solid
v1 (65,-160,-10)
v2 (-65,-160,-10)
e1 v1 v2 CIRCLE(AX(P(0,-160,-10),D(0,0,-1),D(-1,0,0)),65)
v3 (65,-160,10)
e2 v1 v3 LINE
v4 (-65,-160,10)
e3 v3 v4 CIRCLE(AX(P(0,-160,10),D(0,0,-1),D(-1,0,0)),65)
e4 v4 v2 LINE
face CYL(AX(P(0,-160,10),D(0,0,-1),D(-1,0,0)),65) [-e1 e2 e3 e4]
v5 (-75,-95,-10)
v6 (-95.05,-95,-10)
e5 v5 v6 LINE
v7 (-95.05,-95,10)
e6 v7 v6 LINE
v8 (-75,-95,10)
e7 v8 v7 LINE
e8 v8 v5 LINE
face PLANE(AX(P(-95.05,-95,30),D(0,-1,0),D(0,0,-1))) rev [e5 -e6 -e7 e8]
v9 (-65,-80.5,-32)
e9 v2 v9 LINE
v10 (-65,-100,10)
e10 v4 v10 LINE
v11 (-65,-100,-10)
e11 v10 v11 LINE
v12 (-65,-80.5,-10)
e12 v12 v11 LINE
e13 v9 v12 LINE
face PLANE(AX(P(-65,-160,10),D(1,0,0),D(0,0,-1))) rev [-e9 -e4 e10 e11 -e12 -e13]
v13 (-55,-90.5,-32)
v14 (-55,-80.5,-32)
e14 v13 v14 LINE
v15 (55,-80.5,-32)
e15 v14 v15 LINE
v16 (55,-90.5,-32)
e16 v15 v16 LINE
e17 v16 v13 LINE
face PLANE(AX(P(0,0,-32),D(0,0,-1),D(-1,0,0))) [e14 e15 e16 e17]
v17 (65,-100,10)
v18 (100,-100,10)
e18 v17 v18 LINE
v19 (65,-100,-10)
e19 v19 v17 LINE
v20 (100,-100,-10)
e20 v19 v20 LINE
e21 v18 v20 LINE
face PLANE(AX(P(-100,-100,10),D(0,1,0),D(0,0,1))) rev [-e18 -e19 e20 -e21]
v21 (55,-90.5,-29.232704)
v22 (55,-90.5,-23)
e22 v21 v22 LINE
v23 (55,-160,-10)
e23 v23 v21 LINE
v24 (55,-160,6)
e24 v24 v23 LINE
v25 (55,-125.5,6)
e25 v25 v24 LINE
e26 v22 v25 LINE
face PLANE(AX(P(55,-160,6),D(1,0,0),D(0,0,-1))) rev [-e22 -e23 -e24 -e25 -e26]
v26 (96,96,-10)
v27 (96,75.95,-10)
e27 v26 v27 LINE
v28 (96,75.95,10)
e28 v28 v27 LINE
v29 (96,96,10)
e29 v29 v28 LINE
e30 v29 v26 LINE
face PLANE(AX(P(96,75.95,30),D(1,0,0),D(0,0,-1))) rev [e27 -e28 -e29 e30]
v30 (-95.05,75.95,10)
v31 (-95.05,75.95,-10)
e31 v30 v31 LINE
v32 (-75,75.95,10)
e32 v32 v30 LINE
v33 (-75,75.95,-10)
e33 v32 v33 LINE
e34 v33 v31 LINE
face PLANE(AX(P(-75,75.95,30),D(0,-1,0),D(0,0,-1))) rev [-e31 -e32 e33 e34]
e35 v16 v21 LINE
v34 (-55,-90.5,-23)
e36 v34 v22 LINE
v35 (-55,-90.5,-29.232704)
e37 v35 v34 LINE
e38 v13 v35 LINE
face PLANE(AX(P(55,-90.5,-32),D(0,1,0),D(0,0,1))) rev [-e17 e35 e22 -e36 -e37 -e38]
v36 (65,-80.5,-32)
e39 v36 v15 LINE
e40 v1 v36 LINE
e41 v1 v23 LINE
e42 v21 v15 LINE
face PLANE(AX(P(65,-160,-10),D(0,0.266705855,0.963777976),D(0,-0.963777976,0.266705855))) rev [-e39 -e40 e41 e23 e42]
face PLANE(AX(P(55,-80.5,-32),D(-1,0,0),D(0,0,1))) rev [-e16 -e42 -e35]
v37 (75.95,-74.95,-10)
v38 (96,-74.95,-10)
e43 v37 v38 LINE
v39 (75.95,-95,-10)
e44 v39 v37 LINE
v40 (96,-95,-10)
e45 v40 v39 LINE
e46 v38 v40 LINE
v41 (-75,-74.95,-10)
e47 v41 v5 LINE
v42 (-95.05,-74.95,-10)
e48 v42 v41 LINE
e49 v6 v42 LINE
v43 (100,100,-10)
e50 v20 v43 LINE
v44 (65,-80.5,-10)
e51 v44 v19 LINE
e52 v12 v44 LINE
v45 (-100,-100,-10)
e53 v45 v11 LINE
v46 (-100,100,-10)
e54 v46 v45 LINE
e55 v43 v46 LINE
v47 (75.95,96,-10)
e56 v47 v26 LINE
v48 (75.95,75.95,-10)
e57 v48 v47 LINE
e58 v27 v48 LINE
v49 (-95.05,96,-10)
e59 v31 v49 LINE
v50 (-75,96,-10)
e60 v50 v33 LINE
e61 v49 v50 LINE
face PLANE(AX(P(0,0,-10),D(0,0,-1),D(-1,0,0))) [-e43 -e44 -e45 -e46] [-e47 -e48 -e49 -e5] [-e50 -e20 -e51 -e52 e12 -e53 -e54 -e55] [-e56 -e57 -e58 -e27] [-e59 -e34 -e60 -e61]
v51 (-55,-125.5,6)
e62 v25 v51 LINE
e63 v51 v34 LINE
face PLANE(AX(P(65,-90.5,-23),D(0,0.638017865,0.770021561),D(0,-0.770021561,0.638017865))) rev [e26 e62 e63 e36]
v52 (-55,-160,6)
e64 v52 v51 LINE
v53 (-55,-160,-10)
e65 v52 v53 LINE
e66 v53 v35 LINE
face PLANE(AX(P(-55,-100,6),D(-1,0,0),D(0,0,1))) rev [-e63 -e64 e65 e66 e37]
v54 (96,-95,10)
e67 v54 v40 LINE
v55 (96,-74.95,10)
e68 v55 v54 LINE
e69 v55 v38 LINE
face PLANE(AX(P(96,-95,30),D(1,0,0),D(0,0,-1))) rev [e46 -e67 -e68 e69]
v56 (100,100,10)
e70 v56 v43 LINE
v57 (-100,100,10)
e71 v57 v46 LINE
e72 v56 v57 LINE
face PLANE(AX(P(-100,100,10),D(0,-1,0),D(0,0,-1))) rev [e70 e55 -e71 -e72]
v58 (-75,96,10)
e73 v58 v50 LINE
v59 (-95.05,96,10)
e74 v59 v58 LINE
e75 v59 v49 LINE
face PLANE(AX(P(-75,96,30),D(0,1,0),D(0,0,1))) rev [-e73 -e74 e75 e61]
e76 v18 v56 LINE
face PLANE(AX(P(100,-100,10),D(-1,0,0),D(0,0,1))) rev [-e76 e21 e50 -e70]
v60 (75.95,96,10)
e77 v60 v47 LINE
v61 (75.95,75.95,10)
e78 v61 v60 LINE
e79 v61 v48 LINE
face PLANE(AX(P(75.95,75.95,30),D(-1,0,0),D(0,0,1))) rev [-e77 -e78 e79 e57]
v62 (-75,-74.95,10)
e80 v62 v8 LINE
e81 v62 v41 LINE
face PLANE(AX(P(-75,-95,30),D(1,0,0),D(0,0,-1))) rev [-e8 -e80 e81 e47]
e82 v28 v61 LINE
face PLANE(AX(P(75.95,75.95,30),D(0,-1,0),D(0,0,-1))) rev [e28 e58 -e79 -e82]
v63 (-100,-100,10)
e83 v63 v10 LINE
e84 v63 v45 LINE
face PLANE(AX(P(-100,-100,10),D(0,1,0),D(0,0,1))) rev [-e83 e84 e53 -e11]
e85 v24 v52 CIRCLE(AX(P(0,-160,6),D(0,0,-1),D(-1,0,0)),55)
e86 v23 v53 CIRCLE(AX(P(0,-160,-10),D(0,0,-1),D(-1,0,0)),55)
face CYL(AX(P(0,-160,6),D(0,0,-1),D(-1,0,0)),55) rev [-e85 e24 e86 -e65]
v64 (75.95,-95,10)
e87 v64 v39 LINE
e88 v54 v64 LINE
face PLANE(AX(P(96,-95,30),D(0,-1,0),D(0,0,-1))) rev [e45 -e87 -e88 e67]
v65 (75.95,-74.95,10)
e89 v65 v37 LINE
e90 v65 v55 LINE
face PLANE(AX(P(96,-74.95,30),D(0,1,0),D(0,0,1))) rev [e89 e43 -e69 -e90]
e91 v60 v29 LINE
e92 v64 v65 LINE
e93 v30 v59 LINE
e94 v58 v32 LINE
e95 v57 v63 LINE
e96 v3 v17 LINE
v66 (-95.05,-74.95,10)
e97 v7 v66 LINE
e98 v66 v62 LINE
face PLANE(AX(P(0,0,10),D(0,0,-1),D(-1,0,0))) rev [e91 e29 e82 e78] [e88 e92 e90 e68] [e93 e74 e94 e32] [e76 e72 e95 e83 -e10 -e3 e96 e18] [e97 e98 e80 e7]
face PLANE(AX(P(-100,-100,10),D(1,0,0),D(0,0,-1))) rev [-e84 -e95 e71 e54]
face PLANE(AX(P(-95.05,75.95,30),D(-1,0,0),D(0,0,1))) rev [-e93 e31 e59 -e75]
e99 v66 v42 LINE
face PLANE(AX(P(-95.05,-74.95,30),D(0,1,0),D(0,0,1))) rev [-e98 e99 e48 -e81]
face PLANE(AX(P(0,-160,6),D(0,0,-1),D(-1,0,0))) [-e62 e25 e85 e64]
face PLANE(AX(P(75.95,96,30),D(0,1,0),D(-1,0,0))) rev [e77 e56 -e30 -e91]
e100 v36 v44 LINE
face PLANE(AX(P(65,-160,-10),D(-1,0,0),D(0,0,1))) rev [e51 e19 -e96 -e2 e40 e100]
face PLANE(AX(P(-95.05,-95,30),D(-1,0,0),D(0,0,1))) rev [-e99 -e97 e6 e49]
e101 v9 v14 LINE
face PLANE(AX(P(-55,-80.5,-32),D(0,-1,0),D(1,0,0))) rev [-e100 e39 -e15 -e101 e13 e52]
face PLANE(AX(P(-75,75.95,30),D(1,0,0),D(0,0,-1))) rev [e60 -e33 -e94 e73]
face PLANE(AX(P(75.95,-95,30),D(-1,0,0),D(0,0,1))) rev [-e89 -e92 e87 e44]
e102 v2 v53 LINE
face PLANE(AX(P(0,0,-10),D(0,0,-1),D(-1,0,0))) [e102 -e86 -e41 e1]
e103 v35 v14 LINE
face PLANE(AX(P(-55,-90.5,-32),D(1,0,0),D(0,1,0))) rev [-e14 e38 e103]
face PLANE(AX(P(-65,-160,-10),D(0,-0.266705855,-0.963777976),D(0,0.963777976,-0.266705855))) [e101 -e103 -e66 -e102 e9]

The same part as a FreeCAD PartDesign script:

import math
import FreeCAD as App
import Part
import Sketcher

V = App.Vector
Q = App.Units.Quantity

doc = App.newDocument("Part")
params = doc.addObject("Spreadsheet::Sheet", "Params")
for row, (alias, value) in enumerate([
    ("sketch1_width", "200 mm"),
    ("pad1_length", "20 mm"),
    ("sketch2_width", "20.05 mm"),
    ("pocket1_length", "40 mm"),
    ("sketch3_width", "130 mm"),
    ("sketch3_height", "20 mm"),
    ("pad2_length", "60 mm"),
    ("sketch4_radius", "65 mm"),
    ("pad3_length", "20 mm"),
    ("sketch5_radius", "55 mm"),
    ("sketch5_height", "79.5 mm"),
    ("pocket2_length", "16 mm"),
    ("sketch6_width", "110 mm"),
    ("sketch6_height", "10 mm"),
    ("pad4_length", "38 mm"),
    ("sketch7_height", "22 mm"),
    ("sketch7_width", "79.5 mm"),
    ("pad5_length", "10 mm"),
    ("sketch8_width", "35 mm"),
    ("sketch8_height", "29 mm"),
    ("pad6_length", "120 mm"),
], start=1):
    params.set(f"A{row}", alias)
    params.set(f"B{row}", "=" + value)
    params.setAlias(f"B{row}", alias)

body = doc.addObject("PartDesign::Body", "Body")

sketch1 = doc.addObject("Sketcher::SketchObject", "Sketch")
body.addObject(sketch1)
sketch1.AttachmentSupport = (doc.XY_Plane, [""])
sketch1.MapMode = "FlatFace"
sketch1.addGeometry([
    Part.LineSegment(V(-100, 100, 0), V(-100, -100, 0)),
    Part.LineSegment(V(-100, -100, 0), V(100, -100, 0)),
    Part.LineSegment(V(100, -100, 0), V(100, 100, 0)),
    Part.LineSegment(V(100, 100, 0), V(-100, 100, 0)),
], False)
sketch1.addConstraint([
    Sketcher.Constraint("Coincident", 0, 2, 1, 1),
    Sketcher.Constraint("Coincident", 1, 2, 2, 1),
    Sketcher.Constraint("Coincident", 2, 2, 3, 1),
    Sketcher.Constraint("Coincident", 3, 2, 0, 1),
    Sketcher.Constraint("Vertical", 0),
    Sketcher.Constraint("Horizontal", 1),
    Sketcher.Constraint("Vertical", 2),
    Sketcher.Constraint("Horizontal", 3),
    Sketcher.Constraint("Symmetric", 0, 2, 2, 2, -1, 1),
    Sketcher.Constraint("Equal", 3, 0),
    Sketcher.Constraint("DistanceX", 1, 1, 1, 2, Q("200 mm")),
])
sketch1.setExpression("Constraints[10]", "Params.sketch1_width")
pad1 = doc.addObject("PartDesign::Pad", "Pad")
body.addObject(pad1)
pad1.Profile = sketch1
pad1.setExpression("Length", "Params.pad1_length")
pad1.Midplane = True

sketch2 = doc.addObject("Sketcher::SketchObject", "Sketch001")
body.addObject(sketch2)
sketch2.AttachmentSupport = (doc.XY_Plane, [""])
sketch2.MapMode = "FlatFace"
sketch2.AttachmentOffset = App.Placement(V(0, 0, -10), App.Rotation())
sketch2.addGeometry([
    Part.LineSegment(V(96, 96, 0), V(96, 76, 0)),
    Part.LineSegment(V(96, 76, 0), V(76, 76, 0)),
    Part.LineSegment(V(76, 76, 0), V(76, 96, 0)),
    Part.LineSegment(V(76, 96, 0), V(96, 96, 0)),
    Part.LineSegment(V(-75, 96, 0), V(-75, 76, 0)),
    Part.LineSegment(V(-75, 76, 0), V(-95, 76, 0)),
    Part.LineSegment(V(-95, 76, 0), V(-95, 96, 0)),
    Part.LineSegment(V(-95, 96, 0), V(-75, 96, 0)),
    Part.LineSegment(V(-75, -75, 0), V(-75, -95, 0)),
    Part.LineSegment(V(-75, -95, 0), V(-95, -95, 0)),
    Part.LineSegment(V(-95, -95, 0), V(-95, -75, 0)),
    Part.LineSegment(V(-95, -75, 0), V(-75, -75, 0)),
    Part.LineSegment(V(96, -75, 0), V(96, -95, 0)),
    Part.LineSegment(V(96, -95, 0), V(76, -95, 0)),
    Part.LineSegment(V(76, -95, 0), V(76, -75, 0)),
    Part.LineSegment(V(76, -75, 0), V(96, -75, 0)),
], False)
sketch2.addConstraint([
    Sketcher.Constraint("Coincident", 0, 2, 1, 1),
    Sketcher.Constraint("Coincident", 1, 2, 2, 1),
    Sketcher.Constraint("Coincident", 2, 2, 3, 1),
    Sketcher.Constraint("Coincident", 3, 2, 0, 1),
    Sketcher.Constraint("Coincident", 4, 2, 5, 1),
    Sketcher.Constraint("Coincident", 5, 2, 6, 1),
    Sketcher.Constraint("Coincident", 6, 2, 7, 1),
    Sketcher.Constraint("Coincident", 7, 2, 4, 1),
    Sketcher.Constraint("Coincident", 8, 2, 9, 1),
    Sketcher.Constraint("Coincident", 9, 2, 10, 1),
    Sketcher.Constraint("Coincident", 10, 2, 11, 1),
    Sketcher.Constraint("Coincident", 11, 2, 8, 1),
    Sketcher.Constraint("Coincident", 12, 2, 13, 1),
    Sketcher.Constraint("Coincident", 13, 2, 14, 1),
    Sketcher.Constraint("Coincident", 14, 2, 15, 1),
    Sketcher.Constraint("Coincident", 15, 2, 12, 1),
    Sketcher.Constraint("Vertical", 0),
    Sketcher.Constraint("Horizontal", 1),
    Sketcher.Constraint("Vertical", 2),
    Sketcher.Constraint("Horizontal", 3),
    Sketcher.Constraint("Vertical", 4),
    Sketcher.Constraint("Horizontal", 5),
    Sketcher.Constraint("Vertical", 6),
    Sketcher.Constraint("Horizontal", 7),
    Sketcher.Constraint("Vertical", 8),
    Sketcher.Constraint("Horizontal", 9),
    Sketcher.Constraint("Vertical", 10),
    Sketcher.Constraint("Horizontal", 11),
    Sketcher.Constraint("Vertical", 12),
    Sketcher.Constraint("Horizontal", 13),
    Sketcher.Constraint("Vertical", 14),
    Sketcher.Constraint("Horizontal", 15),
    Sketcher.Constraint("Horizontal", 1, 2, 4, 2),
    Sketcher.Constraint("Horizontal", 3, 2, 6, 2),
    Sketcher.Constraint("Horizontal", 9, 2, 12, 2),
    Sketcher.Constraint("Horizontal", 11, 2, 14, 2),
    Sketcher.Constraint("Vertical", 7, 2, 8, 2),
    Sketcher.Constraint("Vertical", 6, 2, 9, 2),
    Sketcher.Constraint("Vertical", 3, 2, 12, 2),
    Sketcher.Constraint("Vertical", 2, 2, 13, 2),
    Sketcher.Constraint("Equal", 3, 5),
    Sketcher.Constraint("Equal", 15, 0),
    Sketcher.Constraint("Equal", 6, 8),
    Sketcher.Constraint("DistanceX", -1, 1, 0, 2, Q("96 mm")),
    Sketcher.Constraint("DistanceY", -1, 1, 2, 2, Q("96 mm")),
    Sketcher.Constraint("DistanceX", 4, 2, -1, 1, Q("75 mm")),
    Sketcher.Constraint("DistanceY", 8, 2, -1, 1, Q("95 mm")),
    Sketcher.Constraint("DistanceX", 1, 2, 1, 1, Q("20.05 mm")),
])
sketch2.setExpression("Constraints[47]", "Params.sketch2_width")
pocket1 = doc.addObject("PartDesign::Pocket", "Pocket")
body.addObject(pocket1)
pocket1.Profile = sketch2
pocket1.setExpression("Length", "Params.pocket1_length")
pocket1.Reversed = True

sketch3 = doc.addObject("Sketcher::SketchObject", "Sketch002")
body.addObject(sketch3)
sketch3.AttachmentSupport = (doc.XZ_Plane, [""])
sketch3.MapMode = "FlatFace"
sketch3.AttachmentOffset = App.Placement(V(0, 0, 100), App.Rotation())
sketch3.addGeometry([
    Part.LineSegment(V(-65, 10, 0), V(-65, -10, 0)),
    Part.LineSegment(V(-65, -10, 0), V(65, -10, 0)),
    Part.LineSegment(V(65, -10, 0), V(65, 10, 0)),
    Part.LineSegment(V(65, 10, 0), V(-65, 10, 0)),
], False)
sketch3.addConstraint([
    Sketcher.Constraint("Coincident", 0, 2, 1, 1),
    Sketcher.Constraint("Coincident", 1, 2, 2, 1),
    Sketcher.Constraint("Coincident", 2, 2, 3, 1),
    Sketcher.Constraint("Coincident", 3, 2, 0, 1),
    Sketcher.Constraint("Vertical", 0),
    Sketcher.Constraint("Horizontal", 1),
    Sketcher.Constraint("Vertical", 2),
    Sketcher.Constraint("Horizontal", 3),
    Sketcher.Constraint("Symmetric", 0, 2, 2, 2, -1, 1),
    Sketcher.Constraint("DistanceX", 1, 1, 1, 2, Q("130 mm")),
    Sketcher.Constraint("DistanceY", 0, 2, 0, 1, Q("20 mm")),
])
sketch3.setExpression("Constraints[9]", "Params.sketch3_width")
sketch3.setExpression("Constraints[10]", "Params.sketch3_height")
pad2 = doc.addObject("PartDesign::Pad", "Pad001")
body.addObject(pad2)
pad2.Profile = sketch3
pad2.setExpression("Length", "Params.pad2_length")

sketch4 = doc.addObject("Sketcher::SketchObject", "Sketch003")
body.addObject(sketch4)
sketch4.AttachmentSupport = (doc.XY_Plane, [""])
sketch4.MapMode = "FlatFace"
sketch4.AttachmentOffset = App.Placement(V(0, 0, -10), App.Rotation())
sketch4.addGeometry([
    Part.LineSegment(V(-65, -160, 0), V(65, -160, 0)),
    Part.ArcOfCircle(Part.Circle(V(0, -160, 0), V(0, 0, 1), 65), math.radians(180), math.radians(360)),
], False)
sketch4.addConstraint([
    Sketcher.Constraint("Coincident", 0, 1, 1, 1),
    Sketcher.Constraint("Coincident", 1, 2, 0, 2),
    Sketcher.Constraint("Horizontal", 0),
    Sketcher.Constraint("PointOnObject", 1, 3, -2),
    Sketcher.Constraint("Horizontal", 1, 3, 0, 1),
    Sketcher.Constraint("Radius", 1, Q("65 mm")),
    Sketcher.Constraint("DistanceY", 1, 3, -1, 1, Q("160 mm")),
])
sketch4.setExpression("Constraints[5]", "Params.sketch4_radius")
pad3 = doc.addObject("PartDesign::Pad", "Pad002")
body.addObject(pad3)
pad3.Profile = sketch4
pad3.setExpression("Length", "Params.pad3_length")

sketch5 = doc.addObject("Sketcher::SketchObject", "Sketch004")
body.addObject(sketch5)
sketch5.AttachmentSupport = (doc.XY_Plane, [""])
sketch5.MapMode = "FlatFace"
sketch5.AttachmentOffset = App.Placement(V(0, 0, -10), App.Rotation())
sketch5.addGeometry([
    Part.LineSegment(V(-55, -80, 0), V(55, -80, 0)),
    Part.LineSegment(V(55, -80, 0), V(55, -160, 0)),
    Part.ArcOfCircle(Part.Circle(V(0, -160, 0), V(0, 0, 1), 55), math.radians(180), math.radians(360)),
    Part.LineSegment(V(-55, -160, 0), V(-55, -80, 0)),
], False)
sketch5.addConstraint([
    Sketcher.Constraint("Coincident", 0, 2, 1, 1),
    Sketcher.Constraint("Tangent", 1, 2, 2, 2),
    Sketcher.Constraint("Tangent", 2, 1, 3, 1),
    Sketcher.Constraint("Coincident", 3, 2, 0, 1),
    Sketcher.Constraint("Horizontal", 0),
    Sketcher.Constraint("Vertical", 1),
    Sketcher.Constraint("Vertical", 3),
    Sketcher.Constraint("PointOnObject", 2, 3, -2),
    Sketcher.Constraint("Radius", 2, Q("55 mm")),
    Sketcher.Constraint("DistanceY", 1, 2, 1, 1, Q("79.5 mm")),
    Sketcher.Constraint("DistanceY", 2, 3, -1, 1, Q("160 mm")),
])
sketch5.setExpression("Constraints[8]", "Params.sketch5_radius")
sketch5.setExpression("Constraints[9]", "Params.sketch5_height")
pocket2 = doc.addObject("PartDesign::Pocket", "Pocket001")
body.addObject(pocket2)
pocket2.Profile = sketch5
pocket2.setExpression("Length", "Params.pocket2_length")
pocket2.Reversed = True

sketch6 = doc.addObject("Sketcher::SketchObject", "Sketch005")
body.addObject(sketch6)
sketch6.AttachmentSupport = (doc.XY_Plane, [""])
sketch6.MapMode = "FlatFace"
sketch6.AttachmentOffset = App.Placement(V(0, 0, 6), App.Rotation())
sketch6.addGeometry([
    Part.LineSegment(V(55, -80, 0), V(55, -90, 0)),
    Part.LineSegment(V(55, -90, 0), V(-55, -90, 0)),
    Part.LineSegment(V(-55, -90, 0), V(-55, -80, 0)),
    Part.LineSegment(V(-55, -80, 0), V(55, -80, 0)),
], False)
sketch6.addConstraint([
    Sketcher.Constraint("Coincident", 0, 2, 1, 1),
    Sketcher.Constraint("Coincident", 1, 2, 2, 1),
    Sketcher.Constraint("Coincident", 2, 2, 3, 1),
    Sketcher.Constraint("Coincident", 3, 2, 0, 1),
    Sketcher.Constraint("Vertical", 0),
    Sketcher.Constraint("Horizontal", 1),
    Sketcher.Constraint("Vertical", 2),
    Sketcher.Constraint("Horizontal", 3),
    Sketcher.Constraint("DistanceX", 1, 2, 1, 1, Q("110 mm")),
    Sketcher.Constraint("DistanceY", 0, 2, 0, 1, Q("10 mm")),
    Sketcher.Constraint("DistanceX", -1, 1, 0, 2, Q("55 mm")),
    Sketcher.Constraint("DistanceY", 0, 2, -1, 1, Q("90.5 mm")),
])
sketch6.setExpression("Constraints[8]", "Params.sketch6_width")
sketch6.setExpression("Constraints[9]", "Params.sketch6_height")
pad4 = doc.addObject("PartDesign::Pad", "Pad003")
body.addObject(pad4)
pad4.Profile = sketch6
pad4.setExpression("Length", "Params.pad4_length")
pad4.Reversed = True

sketch7 = doc.addObject("Sketcher::SketchObject", "Sketch006")
body.addObject(sketch7)
sketch7.AttachmentSupport = (doc.YZ_Plane, [""])
sketch7.MapMode = "FlatFace"
sketch7.AttachmentOffset = App.Placement(V(0, 0, 55), App.Rotation())
sketch7.addGeometry([
    Part.LineSegment(V(-80, -32, 0), V(-80, -10, 0)),
    Part.LineSegment(V(-80, -10, 0), V(-160, -10, 0)),
    Part.LineSegment(V(-160, -10, 0), V(-80, -32, 0)),
], False)
sketch7.addConstraint([
    Sketcher.Constraint("Coincident", 0, 2, 1, 1),
    Sketcher.Constraint("Coincident", 1, 2, 2, 1),
    Sketcher.Constraint("Coincident", 2, 2, 0, 1),
    Sketcher.Constraint("Vertical", 0),
    Sketcher.Constraint("Horizontal", 1),
    Sketcher.Constraint("DistanceY", 0, 1, 0, 2, Q("22 mm")),
    Sketcher.Constraint("DistanceX", 1, 2, 1, 1, Q("79.5 mm")),
    Sketcher.Constraint("DistanceY", 0, 2, -1, 1, Q("10 mm")),
    Sketcher.Constraint("DistanceX", 1, 2, -1, 1, Q("160 mm")),
])
sketch7.setExpression("Constraints[5]", "Params.sketch7_height")
sketch7.setExpression("Constraints[6]", "Params.sketch7_width")
pad5 = doc.addObject("PartDesign::Pad", "Pad004")
body.addObject(pad5)
pad5.Profile = sketch7
pad5.setExpression("Length", "Params.pad5_length")
doc.recompute()

mirrored = doc.addObject("PartDesign::Mirrored", "Mirrored")
body.addObject(mirrored)
mirrored.Originals = [pad5]
mirrored.MirrorPlane = (doc.YZ_Plane, [""])
body.Tip = mirrored

sketch8 = doc.addObject("Sketcher::SketchObject", "Sketch007")
body.addObject(sketch8)
sketch8.AttachmentSupport = (doc.YZ_Plane, [""])
sketch8.MapMode = "FlatFace"
sketch8.AttachmentOffset = App.Placement(V(0, 0, -55), App.Rotation())
sketch8.addGeometry([
    Part.LineSegment(V(-90, 6, 0), V(-126, 6, 0)),
    Part.LineSegment(V(-126, 6, 0), V(-90, -23, 0)),
    Part.LineSegment(V(-90, -23, 0), V(-90, 6, 0)),
], False)
sketch8.addConstraint([
    Sketcher.Constraint("Coincident", 0, 2, 1, 1),
    Sketcher.Constraint("Coincident", 1, 2, 2, 1),
    Sketcher.Constraint("Coincident", 2, 2, 0, 1),
    Sketcher.Constraint("Horizontal", 0),
    Sketcher.Constraint("Vertical", 2),
    Sketcher.Constraint("DistanceX", 0, 2, 0, 1, Q("35 mm")),
    Sketcher.Constraint("DistanceY", 2, 1, 2, 2, Q("29 mm")),
    Sketcher.Constraint("DistanceY", -1, 1, 0, 2, Q("6 mm")),
    Sketcher.Constraint("DistanceX", 0, 2, -1, 1, Q("125.5 mm")),
])
sketch8.setExpression("Constraints[5]", "Params.sketch8_width")
sketch8.setExpression("Constraints[6]", "Params.sketch8_height")
pad6 = doc.addObject("PartDesign::Pad", "Pad005")
body.addObject(pad6)
pad6.Profile = sketch8
pad6.setExpression("Length", "Params.pad6_length")

doc.recompute()
